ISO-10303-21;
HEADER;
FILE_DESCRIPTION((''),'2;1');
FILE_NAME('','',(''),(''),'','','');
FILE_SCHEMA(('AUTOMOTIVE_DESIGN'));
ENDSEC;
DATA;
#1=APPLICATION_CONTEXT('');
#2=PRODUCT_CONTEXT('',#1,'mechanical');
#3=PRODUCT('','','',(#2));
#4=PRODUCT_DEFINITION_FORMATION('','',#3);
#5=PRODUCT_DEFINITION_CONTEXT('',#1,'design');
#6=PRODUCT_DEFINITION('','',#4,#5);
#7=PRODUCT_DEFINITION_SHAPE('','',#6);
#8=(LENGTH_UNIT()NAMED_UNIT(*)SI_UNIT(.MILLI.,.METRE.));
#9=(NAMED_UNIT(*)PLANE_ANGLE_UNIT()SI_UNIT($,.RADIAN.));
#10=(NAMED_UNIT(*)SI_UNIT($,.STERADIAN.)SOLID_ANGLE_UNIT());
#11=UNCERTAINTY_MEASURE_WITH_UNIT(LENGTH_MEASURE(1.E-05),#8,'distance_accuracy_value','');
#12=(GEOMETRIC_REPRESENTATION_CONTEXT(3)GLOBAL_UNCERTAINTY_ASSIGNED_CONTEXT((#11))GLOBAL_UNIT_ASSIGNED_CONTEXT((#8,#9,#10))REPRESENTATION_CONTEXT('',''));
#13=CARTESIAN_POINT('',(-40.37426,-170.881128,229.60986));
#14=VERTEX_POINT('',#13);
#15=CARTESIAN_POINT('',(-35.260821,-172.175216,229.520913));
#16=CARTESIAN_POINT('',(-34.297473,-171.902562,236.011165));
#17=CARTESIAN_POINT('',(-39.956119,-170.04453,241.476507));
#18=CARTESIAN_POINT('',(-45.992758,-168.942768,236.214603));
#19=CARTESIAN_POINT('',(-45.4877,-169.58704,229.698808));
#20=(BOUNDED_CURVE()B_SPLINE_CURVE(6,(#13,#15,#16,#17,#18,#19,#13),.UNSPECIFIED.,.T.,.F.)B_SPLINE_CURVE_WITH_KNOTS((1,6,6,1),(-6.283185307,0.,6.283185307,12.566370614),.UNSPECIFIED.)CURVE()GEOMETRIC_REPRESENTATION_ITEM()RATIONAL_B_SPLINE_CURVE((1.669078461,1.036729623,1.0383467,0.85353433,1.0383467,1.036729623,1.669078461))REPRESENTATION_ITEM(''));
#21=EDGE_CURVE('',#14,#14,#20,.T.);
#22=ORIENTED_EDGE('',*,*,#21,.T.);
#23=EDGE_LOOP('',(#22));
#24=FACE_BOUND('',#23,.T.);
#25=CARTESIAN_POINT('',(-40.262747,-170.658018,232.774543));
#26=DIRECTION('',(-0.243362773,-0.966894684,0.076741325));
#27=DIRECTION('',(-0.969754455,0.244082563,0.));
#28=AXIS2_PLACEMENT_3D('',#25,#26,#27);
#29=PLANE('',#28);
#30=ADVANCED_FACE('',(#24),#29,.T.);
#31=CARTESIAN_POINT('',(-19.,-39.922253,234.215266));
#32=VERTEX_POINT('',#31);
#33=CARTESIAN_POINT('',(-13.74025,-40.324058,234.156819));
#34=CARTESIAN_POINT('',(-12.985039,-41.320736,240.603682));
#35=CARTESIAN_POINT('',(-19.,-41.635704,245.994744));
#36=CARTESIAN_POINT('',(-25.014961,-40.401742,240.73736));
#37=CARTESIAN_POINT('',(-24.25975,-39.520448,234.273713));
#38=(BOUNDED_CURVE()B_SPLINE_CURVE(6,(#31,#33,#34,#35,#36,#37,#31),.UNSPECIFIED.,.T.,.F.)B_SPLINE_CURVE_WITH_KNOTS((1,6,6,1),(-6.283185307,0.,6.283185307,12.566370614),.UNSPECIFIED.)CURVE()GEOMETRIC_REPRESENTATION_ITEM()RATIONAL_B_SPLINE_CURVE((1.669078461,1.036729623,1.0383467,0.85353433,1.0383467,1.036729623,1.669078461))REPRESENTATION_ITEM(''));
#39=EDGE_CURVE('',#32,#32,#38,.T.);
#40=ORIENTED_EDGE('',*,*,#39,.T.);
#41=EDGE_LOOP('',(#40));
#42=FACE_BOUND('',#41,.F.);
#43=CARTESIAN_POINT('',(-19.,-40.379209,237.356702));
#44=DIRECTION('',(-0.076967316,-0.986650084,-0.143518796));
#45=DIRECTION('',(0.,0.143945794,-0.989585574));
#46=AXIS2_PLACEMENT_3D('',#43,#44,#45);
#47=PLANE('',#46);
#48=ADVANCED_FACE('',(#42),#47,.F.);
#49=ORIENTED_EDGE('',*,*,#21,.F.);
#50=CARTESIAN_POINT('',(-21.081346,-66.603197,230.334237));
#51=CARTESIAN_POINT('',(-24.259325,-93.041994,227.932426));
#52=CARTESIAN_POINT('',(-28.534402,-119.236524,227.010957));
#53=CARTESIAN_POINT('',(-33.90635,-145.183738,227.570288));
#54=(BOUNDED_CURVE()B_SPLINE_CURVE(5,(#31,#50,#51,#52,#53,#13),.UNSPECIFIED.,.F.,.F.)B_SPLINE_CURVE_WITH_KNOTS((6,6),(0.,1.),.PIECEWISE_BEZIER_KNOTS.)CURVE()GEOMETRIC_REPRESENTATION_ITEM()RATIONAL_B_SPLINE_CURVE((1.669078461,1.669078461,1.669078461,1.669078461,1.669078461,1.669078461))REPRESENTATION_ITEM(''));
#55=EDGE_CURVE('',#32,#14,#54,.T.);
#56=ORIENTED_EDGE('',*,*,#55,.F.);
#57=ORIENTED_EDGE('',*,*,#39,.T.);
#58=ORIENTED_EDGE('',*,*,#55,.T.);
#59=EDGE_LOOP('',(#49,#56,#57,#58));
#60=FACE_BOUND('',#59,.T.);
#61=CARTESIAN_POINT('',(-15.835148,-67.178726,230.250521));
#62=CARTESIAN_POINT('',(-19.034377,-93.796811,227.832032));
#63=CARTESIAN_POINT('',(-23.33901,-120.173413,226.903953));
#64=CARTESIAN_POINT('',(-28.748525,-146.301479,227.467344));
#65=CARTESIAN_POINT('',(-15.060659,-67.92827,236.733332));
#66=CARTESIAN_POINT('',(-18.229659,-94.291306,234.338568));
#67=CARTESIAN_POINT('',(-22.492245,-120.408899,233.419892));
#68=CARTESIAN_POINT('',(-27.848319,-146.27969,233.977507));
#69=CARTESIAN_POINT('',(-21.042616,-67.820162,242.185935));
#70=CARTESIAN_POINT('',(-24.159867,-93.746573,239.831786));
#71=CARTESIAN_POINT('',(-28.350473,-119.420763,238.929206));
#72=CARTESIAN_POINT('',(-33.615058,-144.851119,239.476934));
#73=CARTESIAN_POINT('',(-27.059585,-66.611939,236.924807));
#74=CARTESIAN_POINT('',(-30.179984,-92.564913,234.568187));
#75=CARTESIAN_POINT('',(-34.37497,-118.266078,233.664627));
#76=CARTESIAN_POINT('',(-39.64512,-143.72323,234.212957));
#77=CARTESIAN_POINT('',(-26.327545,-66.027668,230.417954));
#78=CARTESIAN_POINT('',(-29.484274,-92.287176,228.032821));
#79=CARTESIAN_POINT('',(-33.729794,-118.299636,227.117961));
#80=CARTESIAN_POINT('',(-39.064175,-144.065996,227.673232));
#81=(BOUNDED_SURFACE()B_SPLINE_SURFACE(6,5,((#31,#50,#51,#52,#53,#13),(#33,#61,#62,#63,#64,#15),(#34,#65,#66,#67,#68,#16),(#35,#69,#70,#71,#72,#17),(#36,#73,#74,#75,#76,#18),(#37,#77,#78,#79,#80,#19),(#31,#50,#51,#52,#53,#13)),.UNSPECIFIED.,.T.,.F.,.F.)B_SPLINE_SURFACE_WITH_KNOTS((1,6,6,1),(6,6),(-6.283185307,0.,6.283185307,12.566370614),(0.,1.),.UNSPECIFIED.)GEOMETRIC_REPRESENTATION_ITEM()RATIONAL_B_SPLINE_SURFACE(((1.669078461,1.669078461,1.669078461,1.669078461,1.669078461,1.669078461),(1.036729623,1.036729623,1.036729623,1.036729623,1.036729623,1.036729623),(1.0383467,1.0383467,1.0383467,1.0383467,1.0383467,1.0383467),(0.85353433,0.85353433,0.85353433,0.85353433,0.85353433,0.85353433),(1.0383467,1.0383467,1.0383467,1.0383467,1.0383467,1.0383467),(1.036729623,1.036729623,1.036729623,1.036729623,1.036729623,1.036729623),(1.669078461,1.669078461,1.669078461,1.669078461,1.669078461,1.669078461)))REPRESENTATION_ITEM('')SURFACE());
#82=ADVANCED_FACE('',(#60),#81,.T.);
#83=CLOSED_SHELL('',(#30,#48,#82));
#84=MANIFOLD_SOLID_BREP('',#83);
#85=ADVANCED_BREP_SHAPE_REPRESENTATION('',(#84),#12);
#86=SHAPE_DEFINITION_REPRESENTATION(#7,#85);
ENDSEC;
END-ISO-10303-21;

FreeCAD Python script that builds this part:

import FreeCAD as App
import Part
import Sketcher
Q = App.Units.Quantity

doc = App.newDocument("Part")
params = doc.addObject("Spreadsheet::Sheet", "Params")
for row, (alias, value) in enumerate([
    ("sketch1_diameter", "0.25 in"),
], start=1):
    params.set(f"A{row}", alias)
    params.set(f"B{row}", "=" + value)
    params.setAlias(f"B{row}", alias)

body = doc.addObject("PartDesign::Body", "Body")

sketch1 = doc.addObject("Sketcher::SketchObject", "Sketch")
body.addObject(sketch1)
sketch1.Placement = App.Placement(App.Vector(-19, -40.379281, 237.3572), App.Rotation(App.Vector(0, 0.143945794, -0.989585574), App.Vector(0.997033617, -0.076165746, -0.011079121), App.Vector(-0.076967316, -0.986650084, -0.143518796), "ZXY"))
sketch1.addGeometry(Part.Circle(App.Vector(0, 0, 0), App.Vector(0, 0, 1), 3.2), False)
sketch1.addConstraint([
    Sketcher.Constraint("Coincident", 0, 3, -1, 1),
    Sketcher.Constraint("Diameter", 0, Q("0.25 in")),
])
sketch1.setExpression("Constraints[1]", "Params.sketch1_diameter")

sketch2 = doc.addObject("Sketcher::SketchObject", "Sketch001")
body.addObject(sketch2)
sketch2.Placement = App.Placement(App.Vector(105.356794, -20.057908, 81.390783), App.Rotation(App.Vector(0.611347394, 0, -0.791362347), App.Vector(0.117896267, 0.98884038, 0.091077843), App.Vector(0.782531044, -0.148978868, 0.604524989), "ZXY"))
sketch2.addGeometry(Part.BSplineCurve([App.Vector(-199.451151, -20.550711, 0), App.Vector(-194.976288, -87.671039, 0), App.Vector(-208.823921, -152.299681, 0)], [3, 3], [0, 1], False, 2, [1, 1, 1], False), False)
sketch2.addConstraint(Sketcher.Constraint("Block", 0))
doc.recompute()

additivepipe = doc.addObject("PartDesign::AdditivePipe", "AdditivePipe")
body.addObject(additivepipe)
additivepipe.Profile = sketch1
additivepipe.Spine = (sketch2, ["Edge1"])

doc.recompute()
